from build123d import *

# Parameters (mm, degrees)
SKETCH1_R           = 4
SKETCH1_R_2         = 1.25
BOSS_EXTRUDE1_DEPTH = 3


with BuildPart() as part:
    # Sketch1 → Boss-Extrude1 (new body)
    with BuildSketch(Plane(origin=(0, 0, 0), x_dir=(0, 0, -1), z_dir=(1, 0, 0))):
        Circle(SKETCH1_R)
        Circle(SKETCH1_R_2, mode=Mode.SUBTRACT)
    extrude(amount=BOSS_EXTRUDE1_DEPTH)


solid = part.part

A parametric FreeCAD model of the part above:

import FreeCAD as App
import Part
import Sketcher

doc = App.newDocument("Part")
body = doc.addObject("PartDesign::Body", "Body")

# Sketch on YZ plane
sketch1 = body.newObject("Sketcher::SketchObject", "Sketch")
sketch1.AttachmentSupport = (doc.getObject("YZ_Plane"), [""])
sketch1.MapMode = "FlatFace"
sketch1.addGeometry(Part.Circle(App.Vector(0, 0, 0), App.Vector(0, 0, 1), 4), False)
sketch1.addGeometry(Part.Circle(App.Vector(0, 0, 0), App.Vector(0, 0, 1), 1.2), False)
sketch1.addConstraint(Sketcher.Constraint("Coincident", 0, 3, -1, 1))
sketch1.addConstraint(Sketcher.Constraint("Coincident", 1, 3, -1, 1))
sketch1.addConstraint(Sketcher.Constraint("Diameter", 0, 8.0))
sketch1.addConstraint(Sketcher.Constraint("Diameter", 1, 2.5))
pad1 = body.newObject("PartDesign::Pad", "Pad")
pad1.Profile = sketch1
pad1.Length = 3

doc.recompute()
